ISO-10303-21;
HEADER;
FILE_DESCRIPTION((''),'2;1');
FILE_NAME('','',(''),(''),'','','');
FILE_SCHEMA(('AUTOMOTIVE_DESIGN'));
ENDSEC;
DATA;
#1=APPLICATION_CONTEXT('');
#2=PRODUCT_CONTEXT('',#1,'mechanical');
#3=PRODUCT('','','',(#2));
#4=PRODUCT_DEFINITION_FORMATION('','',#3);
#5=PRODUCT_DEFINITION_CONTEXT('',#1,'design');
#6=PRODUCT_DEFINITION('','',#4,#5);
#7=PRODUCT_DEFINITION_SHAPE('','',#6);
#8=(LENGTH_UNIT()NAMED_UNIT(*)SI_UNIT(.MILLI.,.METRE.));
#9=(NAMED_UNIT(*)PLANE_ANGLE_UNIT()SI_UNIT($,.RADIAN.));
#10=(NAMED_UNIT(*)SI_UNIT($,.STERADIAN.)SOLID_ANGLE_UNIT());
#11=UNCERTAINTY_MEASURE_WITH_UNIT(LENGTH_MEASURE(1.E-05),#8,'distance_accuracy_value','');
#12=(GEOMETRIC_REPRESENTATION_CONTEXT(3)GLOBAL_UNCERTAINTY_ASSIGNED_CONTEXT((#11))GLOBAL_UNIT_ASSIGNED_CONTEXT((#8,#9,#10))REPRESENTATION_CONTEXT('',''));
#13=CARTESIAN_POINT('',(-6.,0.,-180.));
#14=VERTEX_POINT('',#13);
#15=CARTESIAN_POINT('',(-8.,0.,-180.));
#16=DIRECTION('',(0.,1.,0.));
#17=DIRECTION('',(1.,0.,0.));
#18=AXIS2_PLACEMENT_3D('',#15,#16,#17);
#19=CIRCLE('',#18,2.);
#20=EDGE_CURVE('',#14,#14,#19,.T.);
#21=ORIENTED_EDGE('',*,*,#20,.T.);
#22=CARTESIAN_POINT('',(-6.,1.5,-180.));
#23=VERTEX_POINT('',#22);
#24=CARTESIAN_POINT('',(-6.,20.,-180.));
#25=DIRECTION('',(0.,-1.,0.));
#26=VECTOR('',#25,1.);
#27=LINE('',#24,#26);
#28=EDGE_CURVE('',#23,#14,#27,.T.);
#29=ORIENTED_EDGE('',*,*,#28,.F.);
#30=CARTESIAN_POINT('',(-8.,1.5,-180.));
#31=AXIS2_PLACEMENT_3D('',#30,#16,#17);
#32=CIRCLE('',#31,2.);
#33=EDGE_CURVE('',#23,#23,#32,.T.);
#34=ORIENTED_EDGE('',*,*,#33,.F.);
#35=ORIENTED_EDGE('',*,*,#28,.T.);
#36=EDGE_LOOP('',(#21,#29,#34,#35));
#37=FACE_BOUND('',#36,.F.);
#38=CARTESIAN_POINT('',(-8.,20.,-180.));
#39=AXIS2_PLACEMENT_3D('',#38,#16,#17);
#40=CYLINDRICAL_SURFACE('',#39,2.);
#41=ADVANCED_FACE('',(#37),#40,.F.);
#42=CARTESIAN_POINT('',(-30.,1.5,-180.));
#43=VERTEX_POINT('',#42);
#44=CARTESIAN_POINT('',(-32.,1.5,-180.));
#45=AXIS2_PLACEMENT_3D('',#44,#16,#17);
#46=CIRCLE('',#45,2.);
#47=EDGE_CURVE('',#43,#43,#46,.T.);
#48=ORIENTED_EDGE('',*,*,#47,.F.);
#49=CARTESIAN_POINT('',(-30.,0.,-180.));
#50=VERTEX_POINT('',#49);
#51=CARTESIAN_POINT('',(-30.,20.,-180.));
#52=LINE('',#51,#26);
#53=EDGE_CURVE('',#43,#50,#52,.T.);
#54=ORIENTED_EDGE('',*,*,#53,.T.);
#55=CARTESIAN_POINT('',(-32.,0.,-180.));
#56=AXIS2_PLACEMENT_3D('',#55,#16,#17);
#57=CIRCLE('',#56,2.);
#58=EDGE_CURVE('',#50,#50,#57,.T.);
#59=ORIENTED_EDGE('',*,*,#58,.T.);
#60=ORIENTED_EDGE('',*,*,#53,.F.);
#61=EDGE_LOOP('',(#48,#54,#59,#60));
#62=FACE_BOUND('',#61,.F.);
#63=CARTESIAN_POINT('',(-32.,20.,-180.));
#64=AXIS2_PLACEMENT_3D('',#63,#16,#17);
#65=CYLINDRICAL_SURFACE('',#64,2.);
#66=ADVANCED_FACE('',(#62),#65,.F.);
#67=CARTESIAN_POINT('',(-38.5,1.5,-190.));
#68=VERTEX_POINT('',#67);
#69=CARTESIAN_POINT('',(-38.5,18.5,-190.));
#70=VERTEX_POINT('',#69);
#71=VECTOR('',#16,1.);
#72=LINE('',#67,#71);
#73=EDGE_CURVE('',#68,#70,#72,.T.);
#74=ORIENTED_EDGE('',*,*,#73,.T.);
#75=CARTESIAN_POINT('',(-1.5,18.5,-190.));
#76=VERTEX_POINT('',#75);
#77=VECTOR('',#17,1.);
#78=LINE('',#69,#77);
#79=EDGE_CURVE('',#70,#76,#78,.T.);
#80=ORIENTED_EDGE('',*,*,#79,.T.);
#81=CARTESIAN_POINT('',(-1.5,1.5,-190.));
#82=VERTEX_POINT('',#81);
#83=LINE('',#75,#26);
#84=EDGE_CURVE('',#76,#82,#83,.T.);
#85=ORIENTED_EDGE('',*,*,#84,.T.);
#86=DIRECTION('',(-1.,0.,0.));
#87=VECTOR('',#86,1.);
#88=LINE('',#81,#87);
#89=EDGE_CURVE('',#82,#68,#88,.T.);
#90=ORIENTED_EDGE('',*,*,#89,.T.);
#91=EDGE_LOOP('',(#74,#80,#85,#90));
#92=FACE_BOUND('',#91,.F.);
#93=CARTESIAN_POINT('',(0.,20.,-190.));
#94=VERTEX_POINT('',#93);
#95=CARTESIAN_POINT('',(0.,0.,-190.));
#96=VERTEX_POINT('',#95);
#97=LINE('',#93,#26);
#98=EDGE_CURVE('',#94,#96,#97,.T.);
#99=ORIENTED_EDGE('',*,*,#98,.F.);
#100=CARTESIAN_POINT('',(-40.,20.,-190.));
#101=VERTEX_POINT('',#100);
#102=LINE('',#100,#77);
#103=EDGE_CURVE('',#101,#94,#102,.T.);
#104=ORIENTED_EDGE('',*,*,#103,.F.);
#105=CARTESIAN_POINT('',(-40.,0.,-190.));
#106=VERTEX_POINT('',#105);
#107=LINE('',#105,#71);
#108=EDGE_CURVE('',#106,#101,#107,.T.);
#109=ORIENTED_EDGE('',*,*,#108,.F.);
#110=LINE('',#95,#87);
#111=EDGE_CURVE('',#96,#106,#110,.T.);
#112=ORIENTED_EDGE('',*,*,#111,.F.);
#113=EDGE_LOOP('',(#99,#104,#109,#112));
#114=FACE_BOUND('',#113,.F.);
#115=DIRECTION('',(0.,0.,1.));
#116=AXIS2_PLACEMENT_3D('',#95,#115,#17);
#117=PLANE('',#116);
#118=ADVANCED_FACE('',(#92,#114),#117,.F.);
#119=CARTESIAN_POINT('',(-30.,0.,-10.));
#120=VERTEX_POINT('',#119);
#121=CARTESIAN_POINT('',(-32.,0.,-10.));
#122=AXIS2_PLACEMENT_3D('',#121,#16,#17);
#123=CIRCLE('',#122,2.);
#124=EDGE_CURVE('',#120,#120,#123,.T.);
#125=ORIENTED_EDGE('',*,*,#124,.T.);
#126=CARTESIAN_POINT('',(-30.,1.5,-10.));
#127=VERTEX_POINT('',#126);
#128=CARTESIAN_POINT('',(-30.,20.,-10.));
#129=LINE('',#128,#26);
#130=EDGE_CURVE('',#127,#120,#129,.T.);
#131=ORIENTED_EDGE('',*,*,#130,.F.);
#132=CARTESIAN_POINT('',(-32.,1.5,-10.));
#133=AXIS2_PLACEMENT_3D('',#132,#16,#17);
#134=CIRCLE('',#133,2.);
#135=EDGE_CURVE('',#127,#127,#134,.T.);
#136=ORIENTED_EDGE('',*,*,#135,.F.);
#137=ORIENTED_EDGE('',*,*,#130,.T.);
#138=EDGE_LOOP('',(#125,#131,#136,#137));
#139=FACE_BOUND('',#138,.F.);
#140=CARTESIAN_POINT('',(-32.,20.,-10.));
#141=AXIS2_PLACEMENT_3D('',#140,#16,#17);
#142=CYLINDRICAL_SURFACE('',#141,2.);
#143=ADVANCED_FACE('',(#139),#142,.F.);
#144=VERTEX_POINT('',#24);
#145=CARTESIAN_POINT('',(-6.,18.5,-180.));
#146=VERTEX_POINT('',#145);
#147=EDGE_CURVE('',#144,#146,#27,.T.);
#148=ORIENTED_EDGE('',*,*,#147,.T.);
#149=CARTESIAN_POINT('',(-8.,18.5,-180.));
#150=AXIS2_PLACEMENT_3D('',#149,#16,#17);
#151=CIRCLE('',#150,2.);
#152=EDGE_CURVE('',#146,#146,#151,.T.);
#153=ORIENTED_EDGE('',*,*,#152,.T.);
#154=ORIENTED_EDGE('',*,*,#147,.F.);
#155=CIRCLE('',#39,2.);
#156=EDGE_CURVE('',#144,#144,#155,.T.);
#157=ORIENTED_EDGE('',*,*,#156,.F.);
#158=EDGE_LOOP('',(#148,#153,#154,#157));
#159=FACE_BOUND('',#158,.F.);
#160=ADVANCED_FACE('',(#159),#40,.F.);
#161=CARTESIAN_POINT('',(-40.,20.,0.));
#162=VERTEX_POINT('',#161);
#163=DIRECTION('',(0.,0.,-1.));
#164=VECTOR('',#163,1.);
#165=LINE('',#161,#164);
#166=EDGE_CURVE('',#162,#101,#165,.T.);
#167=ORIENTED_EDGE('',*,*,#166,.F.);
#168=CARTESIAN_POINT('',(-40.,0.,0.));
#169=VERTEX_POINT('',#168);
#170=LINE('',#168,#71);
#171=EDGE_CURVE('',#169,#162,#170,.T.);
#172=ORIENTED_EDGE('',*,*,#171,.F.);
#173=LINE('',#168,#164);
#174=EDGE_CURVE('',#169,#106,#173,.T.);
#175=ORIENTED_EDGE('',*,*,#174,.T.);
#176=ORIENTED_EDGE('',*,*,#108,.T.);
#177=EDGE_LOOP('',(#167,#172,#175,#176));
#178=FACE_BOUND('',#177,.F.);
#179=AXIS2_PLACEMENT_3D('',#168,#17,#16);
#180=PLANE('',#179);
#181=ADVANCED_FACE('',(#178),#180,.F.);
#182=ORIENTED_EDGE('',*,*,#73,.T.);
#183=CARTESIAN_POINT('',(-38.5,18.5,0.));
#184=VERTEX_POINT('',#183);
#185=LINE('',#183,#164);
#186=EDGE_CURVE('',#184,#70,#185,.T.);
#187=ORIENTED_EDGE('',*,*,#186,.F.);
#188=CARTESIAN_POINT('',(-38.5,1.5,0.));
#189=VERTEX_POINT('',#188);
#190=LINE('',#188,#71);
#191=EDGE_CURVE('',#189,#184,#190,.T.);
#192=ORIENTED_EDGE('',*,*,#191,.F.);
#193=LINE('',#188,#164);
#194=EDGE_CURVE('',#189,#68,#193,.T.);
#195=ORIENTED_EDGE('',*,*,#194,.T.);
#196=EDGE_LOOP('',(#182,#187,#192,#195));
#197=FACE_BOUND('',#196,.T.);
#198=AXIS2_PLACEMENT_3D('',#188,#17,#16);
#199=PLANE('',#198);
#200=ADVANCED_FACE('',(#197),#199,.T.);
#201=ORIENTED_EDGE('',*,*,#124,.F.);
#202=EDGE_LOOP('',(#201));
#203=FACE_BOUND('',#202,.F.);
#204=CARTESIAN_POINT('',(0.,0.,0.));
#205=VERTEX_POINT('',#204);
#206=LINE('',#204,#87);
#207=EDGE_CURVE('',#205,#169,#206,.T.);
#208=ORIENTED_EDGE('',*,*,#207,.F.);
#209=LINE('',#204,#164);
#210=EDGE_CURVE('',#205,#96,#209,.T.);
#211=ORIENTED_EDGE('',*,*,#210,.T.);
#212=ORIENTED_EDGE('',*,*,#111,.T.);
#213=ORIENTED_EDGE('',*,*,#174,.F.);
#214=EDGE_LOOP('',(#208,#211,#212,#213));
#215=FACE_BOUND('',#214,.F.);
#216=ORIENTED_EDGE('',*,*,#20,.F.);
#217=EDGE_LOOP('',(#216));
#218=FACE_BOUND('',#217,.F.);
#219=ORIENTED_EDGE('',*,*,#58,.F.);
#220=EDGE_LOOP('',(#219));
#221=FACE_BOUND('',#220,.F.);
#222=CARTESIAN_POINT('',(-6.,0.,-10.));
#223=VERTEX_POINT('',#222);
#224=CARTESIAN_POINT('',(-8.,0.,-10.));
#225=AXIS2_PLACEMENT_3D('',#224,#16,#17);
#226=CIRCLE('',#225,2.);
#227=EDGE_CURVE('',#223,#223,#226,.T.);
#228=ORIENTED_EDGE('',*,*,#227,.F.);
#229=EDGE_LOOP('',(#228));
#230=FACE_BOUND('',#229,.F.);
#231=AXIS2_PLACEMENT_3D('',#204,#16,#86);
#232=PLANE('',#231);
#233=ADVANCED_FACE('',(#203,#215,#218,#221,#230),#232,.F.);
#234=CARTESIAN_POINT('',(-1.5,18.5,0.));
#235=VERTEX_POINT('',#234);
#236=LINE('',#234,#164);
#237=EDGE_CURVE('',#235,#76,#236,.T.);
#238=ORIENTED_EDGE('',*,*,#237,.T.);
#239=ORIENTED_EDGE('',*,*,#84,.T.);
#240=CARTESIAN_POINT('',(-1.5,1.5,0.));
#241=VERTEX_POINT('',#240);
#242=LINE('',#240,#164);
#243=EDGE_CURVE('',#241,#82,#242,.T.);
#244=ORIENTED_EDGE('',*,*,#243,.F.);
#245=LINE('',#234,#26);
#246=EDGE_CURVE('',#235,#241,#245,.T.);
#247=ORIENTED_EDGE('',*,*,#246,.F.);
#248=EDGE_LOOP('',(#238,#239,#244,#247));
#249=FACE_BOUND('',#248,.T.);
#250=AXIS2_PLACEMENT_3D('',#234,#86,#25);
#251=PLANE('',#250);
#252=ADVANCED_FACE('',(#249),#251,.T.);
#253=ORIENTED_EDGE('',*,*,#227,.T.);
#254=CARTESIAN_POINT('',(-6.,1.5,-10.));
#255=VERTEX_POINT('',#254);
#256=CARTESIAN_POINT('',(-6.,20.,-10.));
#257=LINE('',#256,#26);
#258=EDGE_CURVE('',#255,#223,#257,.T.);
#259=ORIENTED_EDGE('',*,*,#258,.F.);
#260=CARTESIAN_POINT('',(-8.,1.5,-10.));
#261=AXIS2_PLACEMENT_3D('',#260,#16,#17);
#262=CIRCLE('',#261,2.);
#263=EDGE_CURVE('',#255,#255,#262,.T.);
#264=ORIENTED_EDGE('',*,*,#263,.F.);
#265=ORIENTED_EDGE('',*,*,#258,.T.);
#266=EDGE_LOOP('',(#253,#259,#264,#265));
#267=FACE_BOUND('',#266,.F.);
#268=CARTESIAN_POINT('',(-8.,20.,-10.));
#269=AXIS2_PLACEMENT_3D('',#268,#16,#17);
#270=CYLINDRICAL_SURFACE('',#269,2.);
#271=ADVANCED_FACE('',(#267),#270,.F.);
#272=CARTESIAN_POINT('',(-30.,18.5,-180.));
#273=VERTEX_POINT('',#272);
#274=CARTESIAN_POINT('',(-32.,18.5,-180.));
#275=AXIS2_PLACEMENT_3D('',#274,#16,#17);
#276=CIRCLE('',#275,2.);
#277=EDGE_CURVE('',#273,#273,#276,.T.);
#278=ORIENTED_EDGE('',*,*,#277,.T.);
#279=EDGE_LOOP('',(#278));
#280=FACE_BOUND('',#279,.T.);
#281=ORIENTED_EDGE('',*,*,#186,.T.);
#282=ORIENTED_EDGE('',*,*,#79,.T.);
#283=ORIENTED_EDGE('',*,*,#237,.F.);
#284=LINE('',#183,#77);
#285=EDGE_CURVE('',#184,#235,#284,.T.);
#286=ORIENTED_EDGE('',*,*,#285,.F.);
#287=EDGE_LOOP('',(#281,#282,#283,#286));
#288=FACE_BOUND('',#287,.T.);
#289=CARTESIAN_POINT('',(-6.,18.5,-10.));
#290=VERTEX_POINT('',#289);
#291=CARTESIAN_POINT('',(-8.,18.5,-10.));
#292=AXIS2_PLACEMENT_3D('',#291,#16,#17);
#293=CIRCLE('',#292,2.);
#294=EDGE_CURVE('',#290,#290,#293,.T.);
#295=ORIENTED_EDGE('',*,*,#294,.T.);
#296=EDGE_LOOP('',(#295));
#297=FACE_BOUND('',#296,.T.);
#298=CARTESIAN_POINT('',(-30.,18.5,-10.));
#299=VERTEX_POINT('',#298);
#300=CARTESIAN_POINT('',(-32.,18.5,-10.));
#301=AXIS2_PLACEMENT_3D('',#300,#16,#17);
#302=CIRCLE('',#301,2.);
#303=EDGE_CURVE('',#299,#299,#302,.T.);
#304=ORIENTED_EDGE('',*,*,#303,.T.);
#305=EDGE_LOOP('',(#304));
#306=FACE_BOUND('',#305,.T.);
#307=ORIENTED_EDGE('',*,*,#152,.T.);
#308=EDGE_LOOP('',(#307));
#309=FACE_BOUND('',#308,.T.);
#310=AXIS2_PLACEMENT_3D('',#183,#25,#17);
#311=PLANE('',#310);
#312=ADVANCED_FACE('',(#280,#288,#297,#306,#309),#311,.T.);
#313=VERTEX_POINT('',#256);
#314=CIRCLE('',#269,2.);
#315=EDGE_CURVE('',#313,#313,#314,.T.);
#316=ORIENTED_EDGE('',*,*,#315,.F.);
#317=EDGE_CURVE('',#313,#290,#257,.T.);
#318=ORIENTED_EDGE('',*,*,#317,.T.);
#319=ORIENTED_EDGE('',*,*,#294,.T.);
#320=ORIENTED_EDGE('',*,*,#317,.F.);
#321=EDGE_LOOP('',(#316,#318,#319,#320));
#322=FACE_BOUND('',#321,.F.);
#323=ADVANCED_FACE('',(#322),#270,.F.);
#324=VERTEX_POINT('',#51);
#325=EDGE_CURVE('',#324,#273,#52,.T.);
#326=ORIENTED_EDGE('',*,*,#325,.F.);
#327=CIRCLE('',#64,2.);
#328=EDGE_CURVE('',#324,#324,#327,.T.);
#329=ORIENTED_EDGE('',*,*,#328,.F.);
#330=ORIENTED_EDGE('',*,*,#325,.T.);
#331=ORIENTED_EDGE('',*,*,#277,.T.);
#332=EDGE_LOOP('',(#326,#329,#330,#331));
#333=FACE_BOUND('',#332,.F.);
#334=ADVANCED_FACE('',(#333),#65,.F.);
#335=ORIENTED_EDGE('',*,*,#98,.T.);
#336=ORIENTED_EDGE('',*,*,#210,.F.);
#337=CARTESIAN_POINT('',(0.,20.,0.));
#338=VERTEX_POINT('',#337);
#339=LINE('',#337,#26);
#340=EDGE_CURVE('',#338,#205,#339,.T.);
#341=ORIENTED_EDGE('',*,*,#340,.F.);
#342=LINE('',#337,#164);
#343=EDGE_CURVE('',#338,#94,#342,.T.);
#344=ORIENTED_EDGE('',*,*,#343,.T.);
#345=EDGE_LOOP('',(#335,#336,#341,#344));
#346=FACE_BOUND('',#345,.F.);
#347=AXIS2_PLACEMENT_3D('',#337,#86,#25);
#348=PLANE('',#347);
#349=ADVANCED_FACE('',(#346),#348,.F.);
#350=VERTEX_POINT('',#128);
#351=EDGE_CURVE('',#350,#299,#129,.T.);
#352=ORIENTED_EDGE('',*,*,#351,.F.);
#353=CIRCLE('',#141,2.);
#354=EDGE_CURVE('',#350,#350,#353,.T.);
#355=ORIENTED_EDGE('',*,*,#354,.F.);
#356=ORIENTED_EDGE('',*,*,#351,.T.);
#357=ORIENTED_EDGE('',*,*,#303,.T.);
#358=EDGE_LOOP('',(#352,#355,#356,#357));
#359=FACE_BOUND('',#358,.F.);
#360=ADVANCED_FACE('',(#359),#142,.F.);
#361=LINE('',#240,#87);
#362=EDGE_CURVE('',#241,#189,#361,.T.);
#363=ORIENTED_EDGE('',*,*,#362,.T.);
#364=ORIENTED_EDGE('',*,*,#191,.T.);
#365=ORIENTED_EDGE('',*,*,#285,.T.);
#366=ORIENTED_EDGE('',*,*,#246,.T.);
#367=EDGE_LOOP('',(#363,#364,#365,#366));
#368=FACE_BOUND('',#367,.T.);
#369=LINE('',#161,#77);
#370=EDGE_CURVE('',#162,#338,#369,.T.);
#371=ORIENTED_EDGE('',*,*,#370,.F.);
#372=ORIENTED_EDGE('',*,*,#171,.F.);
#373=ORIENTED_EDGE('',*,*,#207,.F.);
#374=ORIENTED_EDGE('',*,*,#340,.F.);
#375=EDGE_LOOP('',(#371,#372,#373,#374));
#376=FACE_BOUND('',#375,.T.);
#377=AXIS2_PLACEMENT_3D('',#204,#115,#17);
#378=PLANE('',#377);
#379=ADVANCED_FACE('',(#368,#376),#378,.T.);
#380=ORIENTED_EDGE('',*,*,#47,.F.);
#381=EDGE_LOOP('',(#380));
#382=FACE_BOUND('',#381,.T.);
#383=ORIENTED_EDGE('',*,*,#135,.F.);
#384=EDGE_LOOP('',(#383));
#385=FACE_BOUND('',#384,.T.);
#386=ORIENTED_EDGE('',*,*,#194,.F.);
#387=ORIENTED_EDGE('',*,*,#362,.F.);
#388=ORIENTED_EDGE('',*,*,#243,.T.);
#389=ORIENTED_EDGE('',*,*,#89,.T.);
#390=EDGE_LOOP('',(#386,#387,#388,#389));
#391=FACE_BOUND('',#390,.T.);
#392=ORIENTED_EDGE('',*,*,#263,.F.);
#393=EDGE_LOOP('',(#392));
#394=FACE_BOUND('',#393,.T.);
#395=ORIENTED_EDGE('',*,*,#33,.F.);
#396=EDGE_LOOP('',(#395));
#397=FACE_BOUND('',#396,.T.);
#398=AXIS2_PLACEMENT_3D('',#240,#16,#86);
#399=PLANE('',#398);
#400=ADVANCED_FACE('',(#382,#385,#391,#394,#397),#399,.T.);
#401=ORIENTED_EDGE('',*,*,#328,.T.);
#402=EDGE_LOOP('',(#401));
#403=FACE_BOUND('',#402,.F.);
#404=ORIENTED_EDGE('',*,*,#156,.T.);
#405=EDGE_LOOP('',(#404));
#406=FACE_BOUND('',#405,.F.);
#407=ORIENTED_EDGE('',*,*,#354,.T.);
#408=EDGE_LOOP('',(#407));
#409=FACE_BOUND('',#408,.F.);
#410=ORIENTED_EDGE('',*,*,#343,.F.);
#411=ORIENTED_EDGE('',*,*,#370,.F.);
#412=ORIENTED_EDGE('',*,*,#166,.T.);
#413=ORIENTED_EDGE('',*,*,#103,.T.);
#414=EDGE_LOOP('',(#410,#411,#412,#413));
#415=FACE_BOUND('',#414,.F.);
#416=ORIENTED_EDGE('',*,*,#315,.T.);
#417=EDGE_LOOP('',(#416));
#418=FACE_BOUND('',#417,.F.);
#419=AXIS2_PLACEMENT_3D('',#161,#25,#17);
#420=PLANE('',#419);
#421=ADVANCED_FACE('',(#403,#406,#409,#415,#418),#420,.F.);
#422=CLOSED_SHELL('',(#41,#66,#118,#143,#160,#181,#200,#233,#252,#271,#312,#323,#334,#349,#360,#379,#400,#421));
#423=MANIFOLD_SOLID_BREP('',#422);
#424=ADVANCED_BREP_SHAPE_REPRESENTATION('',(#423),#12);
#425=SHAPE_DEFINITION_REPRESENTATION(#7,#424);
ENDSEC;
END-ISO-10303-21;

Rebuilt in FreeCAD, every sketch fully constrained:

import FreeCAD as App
import Part
import Sketcher
from FreeCAD import Vector
Q = App.Units.Quantity

doc = App.newDocument("Part")
body = doc.addObject("PartDesign::Body", "Body")

# Sketch on XY plane
sketch1 = doc.addObject("Sketcher::SketchObject", "Sketch")
body.addObject(sketch1)
sketch1.AttachmentSupport = (doc.XY_Plane, [""])
sketch1.MapMode = "FlatFace"
sketch1.addGeometry(Part.LineSegment(Vector(-40, 0, 0), Vector(0, 0, 0)), False)
sketch1.addGeometry(Part.LineSegment(Vector(0, 0, 0), Vector(0, 20, 0)), False)
sketch1.addGeometry(Part.LineSegment(Vector(0, 20, 0), Vector(-40, 20, 0)), False)
sketch1.addGeometry(Part.LineSegment(Vector(-40, 20, 0), Vector(-40, 0, 0)), False)
sketch1.addGeometry(Part.LineSegment(Vector(-1.5, 18.5, 0), Vector(-1.5, 1.5, 0)), False)
sketch1.addGeometry(Part.LineSegment(Vector(-1.5, 1.5, 0), Vector(-38.5, 1.5, 0)), False)
sketch1.addGeometry(Part.LineSegment(Vector(-38.5, 1.5, 0), Vector(-38.5, 18.5, 0)), False)
sketch1.addGeometry(Part.LineSegment(Vector(-38.5, 18.5, 0), Vector(-1.5, 18.5, 0)), False)
sketch1.addConstraint(Sketcher.Constraint("Coincident", 0, 2, 1, 1))
sketch1.addConstraint(Sketcher.Constraint("Coincident", 1, 2, 2, 1))
sketch1.addConstraint(Sketcher.Constraint("Coincident", 2, 2, 3, 1))
sketch1.addConstraint(Sketcher.Constraint("Coincident", 3, 2, 0, 1))
sketch1.addConstraint(Sketcher.Constraint("Coincident", 4, 2, 5, 1))
sketch1.addConstraint(Sketcher.Constraint("Coincident", 5, 2, 6, 1))
sketch1.addConstraint(Sketcher.Constraint("Coincident", 6, 2, 7, 1))
sketch1.addConstraint(Sketcher.Constraint("Coincident", 7, 2, 4, 1))
sketch1.addConstraint(Sketcher.Constraint("Horizontal", 0))
sketch1.addConstraint(Sketcher.Constraint("Vertical", 1))
sketch1.addConstraint(Sketcher.Constraint("Horizontal", 2))
sketch1.addConstraint(Sketcher.Constraint("Vertical", 3))
sketch1.addConstraint(Sketcher.Constraint("Vertical", 4))
sketch1.addConstraint(Sketcher.Constraint("Horizontal", 5))
sketch1.addConstraint(Sketcher.Constraint("Vertical", 6))
sketch1.addConstraint(Sketcher.Constraint("Horizontal", 7))
sketch1.addConstraint(Sketcher.Constraint("Coincident", 0, 2, -1, 1))
sketch1.addConstraint(Sketcher.Constraint("DistanceX", 0, 1, 0, 2, Q("40 mm")))
sketch1.addConstraint(Sketcher.Constraint("DistanceY", 1, 1, 1, 2, Q("20 mm")))
sketch1.addConstraint(Sketcher.Constraint("DistanceX", 4, 2, -1, 1, Q("1.5 mm")))
sketch1.addConstraint(Sketcher.Constraint("DistanceY", -1, 1, 4, 2, Q("1.5 mm")))
sketch1.addConstraint(Sketcher.Constraint("DistanceX", 3, 2, 5, 2, Q("1.5 mm")))
sketch1.addConstraint(Sketcher.Constraint("DistanceY", 6, 2, 2, 2, Q("1.5 mm")))
pad1 = doc.addObject("PartDesign::Pad", "Pad")
body.addObject(pad1)
pad1.Profile = sketch1
pad1.Length = 190
pad1.Reversed = True

# Sketch on XZ plane
sketch2 = doc.addObject("Sketcher::SketchObject", "Sketch001")
body.addObject(sketch2)
sketch2.AttachmentSupport = (doc.XZ_Plane, [""])
sketch2.MapMode = "FlatFace"
sketch2.AttachmentOffset = App.Placement(Vector(0, 0, -20), App.Rotation())
sketch2.addGeometry(Part.Circle(Vector(-32, -180, 0), Vector(0, 0, 1), 2), False)
sketch2.addGeometry(Part.Circle(Vector(-8, -180, 0), Vector(0, 0, 1), 2), False)
sketch2.addGeometry(Part.Circle(Vector(-32, -10, 0), Vector(0, 0, 1), 2), False)
sketch2.addGeometry(Part.Circle(Vector(-8, -10, 0), Vector(0, 0, 1), 2), False)
sketch2.addConstraint(Sketcher.Constraint("Equal", 0, 1))
sketch2.addConstraint(Sketcher.Constraint("Equal", 1, 2))
sketch2.addConstraint(Sketcher.Constraint("Equal", 2, 3))
sketch2.addConstraint(Sketcher.Constraint("Horizontal", 0, 3, 1, 3))
sketch2.addConstraint(Sketcher.Constraint("Horizontal", 2, 3, 3, 3))
sketch2.addConstraint(Sketcher.Constraint("Vertical", 0, 3, 2, 3))
sketch2.addConstraint(Sketcher.Constraint("Vertical", 1, 3, 3, 3))
sketch2.addConstraint(Sketcher.Constraint("Diameter", 0, Q("4 mm")))
sketch2.addConstraint(Sketcher.Constraint("DistanceX", 1, 3, -1, 1, Q("8 mm")))
sketch2.addConstraint(Sketcher.Constraint("DistanceY", 2, 3, -1, 1, Q("10 mm")))
sketch2.addConstraint(Sketcher.Constraint("DistanceX", 0, 3, -1, 1, Q("32 mm")))
sketch2.addConstraint(Sketcher.Constraint("DistanceY", 0, 3, -1, 1, Q("180 mm")))
pocket1 = doc.addObject("PartDesign::Pocket", "Pocket")
body.addObject(pocket1)
pocket1.Profile = sketch2
pocket1.Length = 140
pocket1.Reversed = True

doc.recompute()
